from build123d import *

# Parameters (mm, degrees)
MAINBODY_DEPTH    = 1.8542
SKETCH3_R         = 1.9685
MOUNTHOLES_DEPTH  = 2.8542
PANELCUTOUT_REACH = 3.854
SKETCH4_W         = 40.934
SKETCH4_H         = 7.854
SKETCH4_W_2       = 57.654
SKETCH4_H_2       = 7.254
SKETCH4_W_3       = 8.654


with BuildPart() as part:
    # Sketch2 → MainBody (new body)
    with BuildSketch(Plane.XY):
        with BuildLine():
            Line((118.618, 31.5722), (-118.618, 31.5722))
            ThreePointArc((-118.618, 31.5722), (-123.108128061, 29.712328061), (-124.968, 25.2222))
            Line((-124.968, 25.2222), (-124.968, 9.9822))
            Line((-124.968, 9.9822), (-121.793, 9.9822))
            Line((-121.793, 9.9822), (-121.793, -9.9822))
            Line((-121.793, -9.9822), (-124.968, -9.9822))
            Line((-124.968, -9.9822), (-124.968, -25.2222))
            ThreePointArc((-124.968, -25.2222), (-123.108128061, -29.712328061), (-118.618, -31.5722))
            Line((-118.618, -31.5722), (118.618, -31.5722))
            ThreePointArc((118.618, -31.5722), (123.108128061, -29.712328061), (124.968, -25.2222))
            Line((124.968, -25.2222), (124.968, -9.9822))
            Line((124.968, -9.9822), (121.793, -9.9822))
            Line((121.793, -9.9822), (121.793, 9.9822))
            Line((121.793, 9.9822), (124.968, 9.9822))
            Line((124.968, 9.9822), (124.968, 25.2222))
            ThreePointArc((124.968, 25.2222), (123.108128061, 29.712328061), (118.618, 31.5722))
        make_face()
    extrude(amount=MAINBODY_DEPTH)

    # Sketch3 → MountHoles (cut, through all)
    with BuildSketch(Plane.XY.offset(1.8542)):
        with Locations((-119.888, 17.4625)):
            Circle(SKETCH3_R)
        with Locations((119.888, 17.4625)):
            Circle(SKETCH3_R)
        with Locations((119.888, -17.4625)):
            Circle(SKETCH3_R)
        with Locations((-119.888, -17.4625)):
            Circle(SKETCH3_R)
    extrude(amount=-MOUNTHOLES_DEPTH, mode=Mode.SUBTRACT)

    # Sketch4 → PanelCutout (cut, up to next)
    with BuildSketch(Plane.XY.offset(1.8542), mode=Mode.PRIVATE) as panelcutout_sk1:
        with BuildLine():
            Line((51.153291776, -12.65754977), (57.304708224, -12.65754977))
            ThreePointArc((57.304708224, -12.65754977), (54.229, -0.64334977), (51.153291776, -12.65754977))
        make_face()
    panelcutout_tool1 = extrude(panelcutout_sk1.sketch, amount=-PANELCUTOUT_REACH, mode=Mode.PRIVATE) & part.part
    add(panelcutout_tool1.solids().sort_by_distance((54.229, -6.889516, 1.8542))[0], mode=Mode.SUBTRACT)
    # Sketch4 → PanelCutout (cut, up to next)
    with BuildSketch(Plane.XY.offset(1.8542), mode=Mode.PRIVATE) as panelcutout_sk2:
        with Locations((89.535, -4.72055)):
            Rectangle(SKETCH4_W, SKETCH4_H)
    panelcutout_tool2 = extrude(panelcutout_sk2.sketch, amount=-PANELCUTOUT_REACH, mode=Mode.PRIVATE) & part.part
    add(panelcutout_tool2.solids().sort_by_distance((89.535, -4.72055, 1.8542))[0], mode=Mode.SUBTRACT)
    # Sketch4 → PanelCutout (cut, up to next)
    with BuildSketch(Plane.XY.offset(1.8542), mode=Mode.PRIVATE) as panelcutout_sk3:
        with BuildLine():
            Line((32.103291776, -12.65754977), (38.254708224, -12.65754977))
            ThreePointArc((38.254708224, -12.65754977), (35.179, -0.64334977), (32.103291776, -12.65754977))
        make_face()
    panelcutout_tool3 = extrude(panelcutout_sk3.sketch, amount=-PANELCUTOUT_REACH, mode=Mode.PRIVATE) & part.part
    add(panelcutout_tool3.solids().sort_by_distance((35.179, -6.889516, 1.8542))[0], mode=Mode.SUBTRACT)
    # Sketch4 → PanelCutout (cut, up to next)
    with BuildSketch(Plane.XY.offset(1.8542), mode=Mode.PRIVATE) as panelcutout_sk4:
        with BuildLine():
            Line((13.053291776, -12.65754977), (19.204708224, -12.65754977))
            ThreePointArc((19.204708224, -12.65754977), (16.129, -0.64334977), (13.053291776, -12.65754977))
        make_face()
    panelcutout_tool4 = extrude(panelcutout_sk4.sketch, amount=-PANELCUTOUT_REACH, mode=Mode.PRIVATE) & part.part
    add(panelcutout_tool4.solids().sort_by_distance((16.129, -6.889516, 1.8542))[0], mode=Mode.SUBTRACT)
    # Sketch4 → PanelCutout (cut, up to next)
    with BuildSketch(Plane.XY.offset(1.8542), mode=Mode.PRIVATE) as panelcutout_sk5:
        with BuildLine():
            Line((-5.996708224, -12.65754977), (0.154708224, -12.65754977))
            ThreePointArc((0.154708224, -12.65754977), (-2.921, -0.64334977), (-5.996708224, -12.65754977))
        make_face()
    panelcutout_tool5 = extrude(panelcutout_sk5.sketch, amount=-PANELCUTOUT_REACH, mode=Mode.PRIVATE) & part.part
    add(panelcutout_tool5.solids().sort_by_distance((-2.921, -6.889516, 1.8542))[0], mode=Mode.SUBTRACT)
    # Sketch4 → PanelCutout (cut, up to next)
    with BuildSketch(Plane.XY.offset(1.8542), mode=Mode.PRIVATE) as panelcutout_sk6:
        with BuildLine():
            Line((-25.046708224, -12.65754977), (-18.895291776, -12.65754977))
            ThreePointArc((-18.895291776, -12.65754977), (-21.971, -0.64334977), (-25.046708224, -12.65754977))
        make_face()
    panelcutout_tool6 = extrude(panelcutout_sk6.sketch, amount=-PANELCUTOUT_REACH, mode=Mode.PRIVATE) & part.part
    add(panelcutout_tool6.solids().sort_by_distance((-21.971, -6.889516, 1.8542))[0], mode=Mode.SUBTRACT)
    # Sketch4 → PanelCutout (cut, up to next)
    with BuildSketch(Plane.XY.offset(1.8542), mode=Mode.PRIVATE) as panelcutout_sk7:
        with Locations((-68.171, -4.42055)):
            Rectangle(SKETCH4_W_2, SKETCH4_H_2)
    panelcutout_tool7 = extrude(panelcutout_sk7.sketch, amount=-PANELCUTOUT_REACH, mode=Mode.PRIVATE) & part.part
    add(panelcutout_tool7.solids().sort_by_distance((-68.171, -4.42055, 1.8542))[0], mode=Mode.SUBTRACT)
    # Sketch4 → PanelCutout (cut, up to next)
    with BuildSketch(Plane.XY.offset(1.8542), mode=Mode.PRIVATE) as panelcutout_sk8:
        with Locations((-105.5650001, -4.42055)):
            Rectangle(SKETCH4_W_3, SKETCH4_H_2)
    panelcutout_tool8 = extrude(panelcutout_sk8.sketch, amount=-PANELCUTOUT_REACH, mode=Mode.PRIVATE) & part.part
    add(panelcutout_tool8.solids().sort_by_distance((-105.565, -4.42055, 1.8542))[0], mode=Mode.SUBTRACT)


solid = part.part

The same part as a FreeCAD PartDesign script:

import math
import FreeCAD as App
import Part
import Sketcher
from FreeCAD import Vector
Q = App.Units.Quantity


def add_polygon(sketch, points):
    """Adds a closed chain of lines whose ends are joined by coincident constraints."""
    first, n = sketch.GeometryCount, len(points)
    for a, b in zip(points, points[1:] + points[:1]):
        sketch.addGeometry(Part.LineSegment(App.Vector(*a, 0), App.Vector(*b, 0)), False)
    for i in range(n):
        sketch.addConstraint(Sketcher.Constraint("Coincident", first + i, 2, first + (i + 1) % n, 1))

doc = App.newDocument("Part")
body = doc.addObject("PartDesign::Body", "Body")

# Sketch on XY plane
sketch1 = doc.addObject("Sketcher::SketchObject", "Sketch")
body.addObject(sketch1)
sketch1.AttachmentSupport = (doc.XY_Plane, [""])
sketch1.MapMode = "FlatFace"
sketch1.addGeometry(Part.LineSegment(Vector(118.618, 31.5722, 0), Vector(-118.618, 31.5722, 0)), False)
sketch1.addGeometry(Part.ArcOfCircle(Part.Circle(Vector(-118.618, 25.2222, 0), Vector(0, 0, 1), 6.35), math.radians(90), math.radians(180)), False)
sketch1.addGeometry(Part.LineSegment(Vector(-124.968, 25.2222, 0), Vector(-124.968, 9.9822, 0)), False)
sketch1.addGeometry(Part.LineSegment(Vector(-124.968, 9.9822, 0), Vector(-121.793, 9.9822, 0)), False)
sketch1.addGeometry(Part.LineSegment(Vector(-121.793, 9.9822, 0), Vector(-121.793, -9.9822, 0)), False)
sketch1.addGeometry(Part.LineSegment(Vector(-121.793, -9.9822, 0), Vector(-124.968, -9.9822, 0)), False)
sketch1.addGeometry(Part.LineSegment(Vector(-124.968, -9.9822, 0), Vector(-124.968, -25.2222, 0)), False)
sketch1.addGeometry(Part.ArcOfCircle(Part.Circle(Vector(-118.618, -25.2222, 0), Vector(0, 0, 1), 6.35), math.radians(180), math.radians(270)), False)
sketch1.addGeometry(Part.LineSegment(Vector(-118.618, -31.5722, 0), Vector(118.618, -31.5722, 0)), False)
sketch1.addGeometry(Part.ArcOfCircle(Part.Circle(Vector(118.618, -25.2222, 0), Vector(0, 0, 1), 6.35), math.radians(-90), math.radians(0)), False)
sketch1.addGeometry(Part.LineSegment(Vector(124.968, -25.2222, 0), Vector(124.968, -9.9822, 0)), False)
sketch1.addGeometry(Part.LineSegment(Vector(124.968, -9.9822, 0), Vector(121.793, -9.9822, 0)), False)
sketch1.addGeometry(Part.LineSegment(Vector(121.793, -9.9822, 0), Vector(121.793, 9.9822, 0)), False)
sketch1.addGeometry(Part.LineSegment(Vector(121.793, 9.9822, 0), Vector(124.968, 9.9822, 0)), False)
sketch1.addGeometry(Part.LineSegment(Vector(124.968, 9.9822, 0), Vector(124.968, 25.2222, 0)), False)
sketch1.addGeometry(Part.ArcOfCircle(Part.Circle(Vector(118.618, 25.2222, 0), Vector(0, 0, 1), 6.35), math.radians(0), math.radians(90)), False)
sketch1.addConstraint(Sketcher.Constraint("Tangent", 0, 2, 1, 1))
sketch1.addConstraint(Sketcher.Constraint("Tangent", 1, 2, 2, 1))
sketch1.addConstraint(Sketcher.Constraint("Coincident", 2, 2, 3, 1))
sketch1.addConstraint(Sketcher.Constraint("Coincident", 3, 2, 4, 1))
sketch1.addConstraint(Sketcher.Constraint("Coincident", 4, 2, 5, 1))
sketch1.addConstraint(Sketcher.Constraint("Coincident", 5, 2, 6, 1))
sketch1.addConstraint(Sketcher.Constraint("Tangent", 6, 2, 7, 1))
sketch1.addConstraint(Sketcher.Constraint("Tangent", 7, 2, 8, 1))
sketch1.addConstraint(Sketcher.Constraint("Tangent", 8, 2, 9, 1))
sketch1.addConstraint(Sketcher.Constraint("Tangent", 9, 2, 10, 1))
sketch1.addConstraint(Sketcher.Constraint("Coincident", 10, 2, 11, 1))
sketch1.addConstraint(Sketcher.Constraint("Coincident", 11, 2, 12, 1))
sketch1.addConstraint(Sketcher.Constraint("Coincident", 12, 2, 13, 1))
sketch1.addConstraint(Sketcher.Constraint("Coincident", 13, 2, 14, 1))
sketch1.addConstraint(Sketcher.Constraint("Tangent", 14, 2, 15, 1))
sketch1.addConstraint(Sketcher.Constraint("Tangent", 15, 2, 0, 1))
sketch1.addConstraint(Sketcher.Constraint("Horizontal", 0))
sketch1.addConstraint(Sketcher.Constraint("Vertical", 2))
sketch1.addConstraint(Sketcher.Constraint("Horizontal", 3))
sketch1.addConstraint(Sketcher.Constraint("Vertical", 4))
sketch1.addConstraint(Sketcher.Constraint("Horizontal", 5))
sketch1.addConstraint(Sketcher.Constraint("Vertical", 6))
sketch1.addConstraint(Sketcher.Constraint("Horizontal", 8))
sketch1.addConstraint(Sketcher.Constraint("Vertical", 10))
sketch1.addConstraint(Sketcher.Constraint("Horizontal", 11))
sketch1.addConstraint(Sketcher.Constraint("Vertical", 12))
sketch1.addConstraint(Sketcher.Constraint("Horizontal", 13))
sketch1.addConstraint(Sketcher.Constraint("Vertical", 14))
sketch1.addConstraint(Sketcher.Constraint("Equal", 1, 7))
sketch1.addConstraint(Sketcher.Constraint("Equal", 7, 9))
sketch1.addConstraint(Sketcher.Constraint("Equal", 9, 15))
sketch1.addConstraint(Sketcher.Constraint("Symmetric", 1, 3, 9, 3, -1, 1))
sketch1.addConstraint(Sketcher.Constraint("Symmetric", 3, 2, 11, 2, -1, 1))
sketch1.addConstraint(Sketcher.Constraint("Symmetric", 5, 2, 13, 2, -1, 1))
sketch1.addConstraint(Sketcher.Constraint("Symmetric", 5, 2, 10, 2, -2))
sketch1.addConstraint(Sketcher.Constraint("Radius", 1, Q("0.25 in")))
sketch1.addConstraint(Sketcher.Constraint("DistanceY", 2, 2, 2, 1, Q("0.6 in")))
sketch1.addConstraint(Sketcher.Constraint("DistanceX", 0, 2, 0, 1, Q("9.34 in")))
sketch1.addConstraint(Sketcher.Constraint("DistanceX", 3, 1, 3, 2, Q("0.125 in")))
sketch1.addConstraint(Sketcher.Constraint("DistanceY", 4, 2, 4, 1, Q("0.786 in")))
pad1 = doc.addObject("PartDesign::Pad", "Pad")
body.addObject(pad1)
pad1.Profile = sketch1
pad1.Length = Q("0.073 in")

# Sketch on XY plane
sketch2 = doc.addObject("Sketcher::SketchObject", "Sketch001")
body.addObject(sketch2)
sketch2.AttachmentSupport = (doc.XY_Plane, [""])
sketch2.MapMode = "FlatFace"
sketch2.AttachmentOffset = App.Placement(Vector(0, 0, 0.073 * 25.4), App.Rotation())
sketch2.addGeometry(Part.Circle(Vector(-119.888, 17.4625, 0), Vector(0, 0, 1), 1.9685), False)
sketch2.addGeometry(Part.Circle(Vector(119.888, 17.4625, 0), Vector(0, 0, 1), 1.9685), False)
sketch2.addGeometry(Part.Circle(Vector(119.888, -17.4625, 0), Vector(0, 0, 1), 1.9685), False)
sketch2.addGeometry(Part.Circle(Vector(-119.888, -17.4625, 0), Vector(0, 0, 1), 1.9685), False)
sketch2.addConstraint(Sketcher.Constraint("Equal", 0, 1))
sketch2.addConstraint(Sketcher.Constraint("Equal", 1, 2))
sketch2.addConstraint(Sketcher.Constraint("Equal", 2, 3))
sketch2.addConstraint(Sketcher.Constraint("Symmetric", 0, 3, 2, 3, -1, 1))
sketch2.addConstraint(Sketcher.Constraint("Symmetric", 1, 3, 3, 3, -1, 1))
sketch2.addConstraint(Sketcher.Constraint("Symmetric", 0, 3, 1, 3, -2))
sketch2.addConstraint(Sketcher.Constraint("Diameter", 0, Q("0.155 in")))
sketch2.addConstraint(Sketcher.Constraint("DistanceX", 0, 3, -1, 1, Q("4.72 in")))
sketch2.addConstraint(Sketcher.Constraint("DistanceY", -1, 1, 0, 3, Q("0.6875 in")))
pocket1 = doc.addObject("PartDesign::Pocket", "Pocket")
body.addObject(pocket1)
pocket1.Profile = sketch2
pocket1.Type = "ThroughAll"

# Sketch on XY plane
sketch3 = doc.addObject("Sketcher::SketchObject", "Sketch002")
body.addObject(sketch3)
sketch3.AttachmentSupport = (doc.XY_Plane, [""])
sketch3.MapMode = "FlatFace"
sketch3.AttachmentOffset = App.Placement(Vector(0, 0, 0.073 * 25.4), App.Rotation())
sketch3.addGeometry(Part.LineSegment(Vector(51.153292, -12.65755, 0), Vector(57.304708, -12.65755, 0)), False)
sketch3.addGeometry(Part.ArcOfCircle(Part.Circle(Vector(54.229, -7.04415, 0), Vector(0, 0, 1), 6.4008), math.radians(-61.280673), math.radians(241.280673)), False)
sketch3.addConstraint(Sketcher.Constraint("Coincident", 0, 1, 1, 2))
sketch3.addConstraint(Sketcher.Constraint("Coincident", 1, 1, 0, 2))
sketch3.addConstraint(Sketcher.Constraint("Horizontal", 0))
sketch3.addConstraint(Sketcher.Constraint("Radius", 1, Q("0.252 in")))
sketch3.addConstraint(Sketcher.Constraint("DistanceX", -1, 1, 1, 3, Q("2.135 in")))
sketch3.addConstraint(Sketcher.Constraint("DistanceY", 0, 1, 1, 3, Q("0.221 in")))
sketch3.addConstraint(Sketcher.Constraint("DistanceY", 1, 3, -1, 1, 7.04415))
pocket2 = doc.addObject("PartDesign::Pocket", "Pocket001")
body.addObject(pocket2)
pocket2.Profile = sketch3
pocket2.Type = "UpToFirst"

# Sketch on XY plane
sketch4 = doc.addObject("Sketcher::SketchObject", "Sketch003")
body.addObject(sketch4)
sketch4.AttachmentSupport = (doc.XY_Plane, [""])
sketch4.MapMode = "FlatFace"
sketch4.AttachmentOffset = App.Placement(Vector(0, 0, 0.073 * 25.4), App.Rotation())
add_polygon(sketch4, [(69.068, -0.79355), (69.068, -8.64755), (110.002, -8.64755), (110.002, -0.79355)])  # lines 0-3
sketch4.addConstraint(Sketcher.Constraint("Vertical", 0))
sketch4.addConstraint(Sketcher.Constraint("Horizontal", 1))
sketch4.addConstraint(Sketcher.Constraint("Vertical", 2))
sketch4.addConstraint(Sketcher.Constraint("Horizontal", 3))
sketch4.addConstraint(Sketcher.Constraint("DistanceX", 1, 1, 1, 2, 40.934))
sketch4.addConstraint(Sketcher.Constraint("DistanceY", 0, 2, 0, 1, 7.854))
sketch4.addConstraint(Sketcher.Constraint("DistanceX", -1, 1, 0, 2, 69.068))
sketch4.addConstraint(Sketcher.Constraint("DistanceY", 0, 2, -1, 1, 8.64755))
pocket3 = doc.addObject("PartDesign::Pocket", "Pocket002")
body.addObject(pocket3)
pocket3.Profile = sketch4
pocket3.Type = "UpToFirst"

# Sketch on XY plane
sketch5 = doc.addObject("Sketcher::SketchObject", "Sketch004")
body.addObject(sketch5)
sketch5.AttachmentSupport = (doc.XY_Plane, [""])
sketch5.MapMode = "FlatFace"
sketch5.AttachmentOffset = App.Placement(Vector(0, 0, 0.073 * 25.4), App.Rotation())
sketch5.addGeometry(Part.LineSegment(Vector(32.103292, -12.65755, 0), Vector(38.254708, -12.65755, 0)), False)
sketch5.addGeometry(Part.ArcOfCircle(Part.Circle(Vector(35.179, -7.04415, 0), Vector(0, 0, 1), 6.4008), math.radians(-61.280673), math.radians(241.280673)), False)
sketch5.addConstraint(Sketcher.Constraint("Coincident", 0, 1, 1, 2))
sketch5.addConstraint(Sketcher.Constraint("Coincident", 1, 1, 0, 2))
sketch5.addConstraint(Sketcher.Constraint("Horizontal", 0))
sketch5.addConstraint(Sketcher.Constraint("Radius", 1, Q("0.252 in")))
sketch5.addConstraint(Sketcher.Constraint("DistanceX", -1, 1, 1, 3, Q("1.385 in")))
sketch5.addConstraint(Sketcher.Constraint("DistanceY", 0, 1, 1, 3, Q("0.221 in")))
sketch5.addConstraint(Sketcher.Constraint("DistanceY", 1, 3, -1, 1, 7.04415))
pocket4 = doc.addObject("PartDesign::Pocket", "Pocket003")
body.addObject(pocket4)
pocket4.Profile = sketch5
pocket4.Type = "UpToFirst"

# Sketch on XY plane
sketch6 = doc.addObject("Sketcher::SketchObject", "Sketch005")
body.addObject(sketch6)
sketch6.AttachmentSupport = (doc.XY_Plane, [""])
sketch6.MapMode = "FlatFace"
sketch6.AttachmentOffset = App.Placement(Vector(0, 0, 0.073 * 25.4), App.Rotation())
sketch6.addGeometry(Part.LineSegment(Vector(13.053292, -12.65755, 0), Vector(19.204708, -12.65755, 0)), False)
sketch6.addGeometry(Part.ArcOfCircle(Part.Circle(Vector(16.129, -7.04415, 0), Vector(0, 0, 1), 6.4008), math.radians(-61.280673), math.radians(241.280673)), False)
sketch6.addConstraint(Sketcher.Constraint("Coincident", 0, 1, 1, 2))
sketch6.addConstraint(Sketcher.Constraint("Coincident", 1, 1, 0, 2))
sketch6.addConstraint(Sketcher.Constraint("Horizontal", 0))
sketch6.addConstraint(Sketcher.Constraint("Radius", 1, Q("0.252 in")))
sketch6.addConstraint(Sketcher.Constraint("DistanceX", -1, 1, 1, 3, Q("0.635 in")))
sketch6.addConstraint(Sketcher.Constraint("DistanceY", 0, 1, 1, 3, Q("0.221 in")))
sketch6.addConstraint(Sketcher.Constraint("DistanceY", 1, 3, -1, 1, 7.04415))
pocket5 = doc.addObject("PartDesign::Pocket", "Pocket004")
body.addObject(pocket5)
pocket5.Profile = sketch6
pocket5.Type = "UpToFirst"

# Sketch on XY plane
sketch7 = doc.addObject("Sketcher::SketchObject", "Sketch006")
body.addObject(sketch7)
sketch7.AttachmentSupport = (doc.XY_Plane, [""])
sketch7.MapMode = "FlatFace"
sketch7.AttachmentOffset = App.Placement(Vector(0, 0, 0.073 * 25.4), App.Rotation())
sketch7.addGeometry(Part.LineSegment(Vector(-5.996708, -12.65755, 0), Vector(0.154708, -12.65755, 0)), False)
sketch7.addGeometry(Part.ArcOfCircle(Part.Circle(Vector(-2.921, -7.04415, 0), Vector(0, 0, 1), 6.4008), math.radians(-61.280673), math.radians(241.280673)), False)
sketch7.addConstraint(Sketcher.Constraint("Coincident", 0, 1, 1, 2))
sketch7.addConstraint(Sketcher.Constraint("Coincident", 1, 1, 0, 2))
sketch7.addConstraint(Sketcher.Constraint("Horizontal", 0))
sketch7.addConstraint(Sketcher.Constraint("Radius", 1, Q("0.252 in")))
sketch7.addConstraint(Sketcher.Constraint("DistanceX", 1, 3, -1, 1, Q("0.115 in")))
sketch7.addConstraint(Sketcher.Constraint("DistanceY", 0, 1, 1, 3, Q("0.221 in")))
sketch7.addConstraint(Sketcher.Constraint("DistanceY", 1, 3, -1, 1, 7.04415))
pocket6 = doc.addObject("PartDesign::Pocket", "Pocket005")
body.addObject(pocket6)
pocket6.Profile = sketch7
pocket6.Type = "UpToFirst"

# Sketch on XY plane
sketch8 = doc.addObject("Sketcher::SketchObject", "Sketch007")
body.addObject(sketch8)
sketch8.AttachmentSupport = (doc.XY_Plane, [""])
sketch8.MapMode = "FlatFace"
sketch8.AttachmentOffset = App.Placement(Vector(0, 0, 0.073 * 25.4), App.Rotation())
sketch8.addGeometry(Part.LineSegment(Vector(-25.046708, -12.65755, 0), Vector(-18.895292, -12.65755, 0)), False)
sketch8.addGeometry(Part.ArcOfCircle(Part.Circle(Vector(-21.971, -7.04415, 0), Vector(0, 0, 1), 6.4008), math.radians(-61.280673), math.radians(241.280673)), False)
sketch8.addConstraint(Sketcher.Constraint("Coincident", 0, 1, 1, 2))
sketch8.addConstraint(Sketcher.Constraint("Coincident", 1, 1, 0, 2))
sketch8.addConstraint(Sketcher.Constraint("Horizontal", 0))
sketch8.addConstraint(Sketcher.Constraint("Radius", 1, Q("0.252 in")))
sketch8.addConstraint(Sketcher.Constraint("DistanceX", 1, 3, -1, 1, Q("0.865 in")))
sketch8.addConstraint(Sketcher.Constraint("DistanceY", 0, 1, 1, 3, Q("0.221 in")))
sketch8.addConstraint(Sketcher.Constraint("DistanceY", 1, 3, -1, 1, 7.04415))
pocket7 = doc.addObject("PartDesign::Pocket", "Pocket006")
body.addObject(pocket7)
pocket7.Profile = sketch8
pocket7.Type = "UpToFirst"

# Sketch on XY plane
sketch9 = doc.addObject("Sketcher::SketchObject", "Sketch008")
body.addObject(sketch9)
sketch9.AttachmentSupport = (doc.XY_Plane, [""])
sketch9.MapMode = "FlatFace"
sketch9.AttachmentOffset = App.Placement(Vector(0, 0, 0.073 * 25.4), App.Rotation())
add_polygon(sketch9, [(-96.998, -0.79355), (-96.998, -8.04755), (-39.344, -8.04755), (-39.344, -0.79355)])  # lines 0-3
sketch9.addConstraint(Sketcher.Constraint("Vertical", 0))
sketch9.addConstraint(Sketcher.Constraint("Horizontal", 1))
sketch9.addConstraint(Sketcher.Constraint("Vertical", 2))
sketch9.addConstraint(Sketcher.Constraint("Horizontal", 3))
sketch9.addConstraint(Sketcher.Constraint("DistanceX", 1, 1, 1, 2, 57.654))
sketch9.addConstraint(Sketcher.Constraint("DistanceY", 0, 2, 0, 1, 7.254))
sketch9.addConstraint(Sketcher.Constraint("DistanceX", 0, 2, -1, 1, 96.998))
sketch9.addConstraint(Sketcher.Constraint("DistanceY", 0, 2, -1, 1, 8.04755))
pocket8 = doc.addObject("PartDesign::Pocket", "Pocket007")
body.addObject(pocket8)
pocket8.Profile = sketch9
pocket8.Type = "UpToFirst"

# Sketch on XY plane
sketch10 = doc.addObject("Sketcher::SketchObject", "Sketch009")
body.addObject(sketch10)
sketch10.AttachmentSupport = (doc.XY_Plane, [""])
sketch10.MapMode = "FlatFace"
sketch10.AttachmentOffset = App.Placement(Vector(0, 0, 0.073 * 25.4), App.Rotation())
add_polygon(sketch10, [(-109.892, -0.79355), (-109.892, -8.04755), (-101.238, -8.04755), (-101.238, -0.79355)])  # lines 0-3
sketch10.addConstraint(Sketcher.Constraint("Vertical", 0))
sketch10.addConstraint(Sketcher.Constraint("Horizontal", 1))
sketch10.addConstraint(Sketcher.Constraint("Vertical", 2))
sketch10.addConstraint(Sketcher.Constraint("Horizontal", 3))
sketch10.addConstraint(Sketcher.Constraint("DistanceX", 1, 1, 1, 2, 8.654))
sketch10.addConstraint(Sketcher.Constraint("DistanceY", 0, 2, 0, 1, 7.254))
sketch10.addConstraint(Sketcher.Constraint("DistanceX", 0, 2, -1, 1, 109.892))
sketch10.addConstraint(Sketcher.Constraint("DistanceY", 0, 2, -1, 1, 8.04755))
pocket9 = doc.addObject("PartDesign::Pocket", "Pocket008")
body.addObject(pocket9)
pocket9.Profile = sketch10
pocket9.Type = "UpToFirst"

doc.recompute()
